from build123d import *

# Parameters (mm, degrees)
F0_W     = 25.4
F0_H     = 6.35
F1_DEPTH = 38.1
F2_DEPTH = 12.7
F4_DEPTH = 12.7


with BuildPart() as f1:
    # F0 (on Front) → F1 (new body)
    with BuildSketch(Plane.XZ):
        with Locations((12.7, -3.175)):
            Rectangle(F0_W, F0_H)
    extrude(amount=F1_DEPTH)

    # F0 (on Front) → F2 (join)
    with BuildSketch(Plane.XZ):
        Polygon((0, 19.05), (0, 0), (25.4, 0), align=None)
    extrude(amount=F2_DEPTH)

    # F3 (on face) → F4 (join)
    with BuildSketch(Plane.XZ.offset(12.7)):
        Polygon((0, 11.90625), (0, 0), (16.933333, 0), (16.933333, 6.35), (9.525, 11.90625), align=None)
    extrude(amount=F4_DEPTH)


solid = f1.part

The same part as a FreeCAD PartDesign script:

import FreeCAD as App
import Part
import Sketcher
Q = App.Units.Quantity


def add_polygon(sketch, points):
    """Adds a closed chain of lines whose ends are joined by coincident constraints."""
    first, n = sketch.GeometryCount, len(points)
    for a, b in zip(points, points[1:] + points[:1]):
        sketch.addGeometry(Part.LineSegment(App.Vector(*a, 0), App.Vector(*b, 0)), False)
    for i in range(n):
        sketch.addConstraint(Sketcher.Constraint("Coincident", first + i, 2, first + (i + 1) % n, 1))

doc = App.newDocument("Part")
body = doc.addObject("PartDesign::Body", "Body")

sketch1 = body.newObject("Sketcher::SketchObject", "Sketch")
sketch1.AttachmentSupport = (doc.getObject("XZ_Plane"), [""])
sketch1.MapMode = "FlatFace"
add_polygon(sketch1, [(0, 0), (0, -6), (25, -6), (25, 0)])
sketch1.addConstraint([
    Sketcher.Constraint("Vertical", 0),
    Sketcher.Constraint("Horizontal", 1),
    Sketcher.Constraint("Vertical", 2),
    Sketcher.Constraint("Horizontal", 3),
    Sketcher.Constraint("Coincident", 3, 2, -1, 1),
    Sketcher.Constraint("DistanceX", 1, 1, 1, 2, Q("1 in")),
    Sketcher.Constraint("DistanceY", 0, 2, 0, 1, Q("0.25 in")),
])
pad1 = body.newObject("PartDesign::Pad", "Pad")
pad1.Profile = sketch1
pad1.Length = Q("1.5 in")

sketch2 = body.newObject("Sketcher::SketchObject", "Sketch001")
sketch2.AttachmentSupport = (doc.getObject("XZ_Plane"), [""])
sketch2.MapMode = "FlatFace"
add_polygon(sketch2, [(0, 19), (0, 0), (25, 0)])
sketch2.addConstraint([
    Sketcher.Constraint("Vertical", 0),
    Sketcher.Constraint("Horizontal", 1),
    Sketcher.Constraint("Coincident", 0, 2, -1, 1),
    Sketcher.Constraint("DistanceX", 1, 1, 1, 2, Q("1 in")),
    Sketcher.Constraint("DistanceY", 0, 2, 0, 1, Q("0.75 in")),
])
pad2 = body.newObject("PartDesign::Pad", "Pad001")
pad2.Profile = sketch2
pad2.Length = Q("0.5 in")

sketch3 = body.newObject("Sketcher::SketchObject", "Sketch002")
sketch3.AttachmentSupport = (doc.getObject("XZ_Plane"), [""])
sketch3.MapMode = "FlatFace"
sketch3.AttachmentOffset = App.Placement(App.Vector(0, 0, 0.5 * 25.4), App.Rotation())
add_polygon(sketch3, [(0, 12), (0, 0), (17, 0), (17, 6), (10, 12)])
sketch3.addConstraint([
    Sketcher.Constraint("Vertical", 0),
    Sketcher.Constraint("Horizontal", 1),
    Sketcher.Constraint("Vertical", 2),
    Sketcher.Constraint("Horizontal", 4),
    Sketcher.Constraint("Coincident", 0, 2, -1, 1),
    Sketcher.Constraint("DistanceY", 2, 1, 2, 2, Q("0.25 in")),
    Sketcher.Constraint("DistanceX", 4, 2, 4, 1, Q("0.375 in")),
    Sketcher.Constraint("DistanceY", 0, 2, 0, 1, Q("0.46875 in")),
    Sketcher.Constraint("DistanceX", 1, 1, 1, 2, 16.933333),
])
pad3 = body.newObject("PartDesign::Pad", "Pad002")
pad3.Profile = sketch3
pad3.Length = Q("0.5 in")

doc.recompute()
